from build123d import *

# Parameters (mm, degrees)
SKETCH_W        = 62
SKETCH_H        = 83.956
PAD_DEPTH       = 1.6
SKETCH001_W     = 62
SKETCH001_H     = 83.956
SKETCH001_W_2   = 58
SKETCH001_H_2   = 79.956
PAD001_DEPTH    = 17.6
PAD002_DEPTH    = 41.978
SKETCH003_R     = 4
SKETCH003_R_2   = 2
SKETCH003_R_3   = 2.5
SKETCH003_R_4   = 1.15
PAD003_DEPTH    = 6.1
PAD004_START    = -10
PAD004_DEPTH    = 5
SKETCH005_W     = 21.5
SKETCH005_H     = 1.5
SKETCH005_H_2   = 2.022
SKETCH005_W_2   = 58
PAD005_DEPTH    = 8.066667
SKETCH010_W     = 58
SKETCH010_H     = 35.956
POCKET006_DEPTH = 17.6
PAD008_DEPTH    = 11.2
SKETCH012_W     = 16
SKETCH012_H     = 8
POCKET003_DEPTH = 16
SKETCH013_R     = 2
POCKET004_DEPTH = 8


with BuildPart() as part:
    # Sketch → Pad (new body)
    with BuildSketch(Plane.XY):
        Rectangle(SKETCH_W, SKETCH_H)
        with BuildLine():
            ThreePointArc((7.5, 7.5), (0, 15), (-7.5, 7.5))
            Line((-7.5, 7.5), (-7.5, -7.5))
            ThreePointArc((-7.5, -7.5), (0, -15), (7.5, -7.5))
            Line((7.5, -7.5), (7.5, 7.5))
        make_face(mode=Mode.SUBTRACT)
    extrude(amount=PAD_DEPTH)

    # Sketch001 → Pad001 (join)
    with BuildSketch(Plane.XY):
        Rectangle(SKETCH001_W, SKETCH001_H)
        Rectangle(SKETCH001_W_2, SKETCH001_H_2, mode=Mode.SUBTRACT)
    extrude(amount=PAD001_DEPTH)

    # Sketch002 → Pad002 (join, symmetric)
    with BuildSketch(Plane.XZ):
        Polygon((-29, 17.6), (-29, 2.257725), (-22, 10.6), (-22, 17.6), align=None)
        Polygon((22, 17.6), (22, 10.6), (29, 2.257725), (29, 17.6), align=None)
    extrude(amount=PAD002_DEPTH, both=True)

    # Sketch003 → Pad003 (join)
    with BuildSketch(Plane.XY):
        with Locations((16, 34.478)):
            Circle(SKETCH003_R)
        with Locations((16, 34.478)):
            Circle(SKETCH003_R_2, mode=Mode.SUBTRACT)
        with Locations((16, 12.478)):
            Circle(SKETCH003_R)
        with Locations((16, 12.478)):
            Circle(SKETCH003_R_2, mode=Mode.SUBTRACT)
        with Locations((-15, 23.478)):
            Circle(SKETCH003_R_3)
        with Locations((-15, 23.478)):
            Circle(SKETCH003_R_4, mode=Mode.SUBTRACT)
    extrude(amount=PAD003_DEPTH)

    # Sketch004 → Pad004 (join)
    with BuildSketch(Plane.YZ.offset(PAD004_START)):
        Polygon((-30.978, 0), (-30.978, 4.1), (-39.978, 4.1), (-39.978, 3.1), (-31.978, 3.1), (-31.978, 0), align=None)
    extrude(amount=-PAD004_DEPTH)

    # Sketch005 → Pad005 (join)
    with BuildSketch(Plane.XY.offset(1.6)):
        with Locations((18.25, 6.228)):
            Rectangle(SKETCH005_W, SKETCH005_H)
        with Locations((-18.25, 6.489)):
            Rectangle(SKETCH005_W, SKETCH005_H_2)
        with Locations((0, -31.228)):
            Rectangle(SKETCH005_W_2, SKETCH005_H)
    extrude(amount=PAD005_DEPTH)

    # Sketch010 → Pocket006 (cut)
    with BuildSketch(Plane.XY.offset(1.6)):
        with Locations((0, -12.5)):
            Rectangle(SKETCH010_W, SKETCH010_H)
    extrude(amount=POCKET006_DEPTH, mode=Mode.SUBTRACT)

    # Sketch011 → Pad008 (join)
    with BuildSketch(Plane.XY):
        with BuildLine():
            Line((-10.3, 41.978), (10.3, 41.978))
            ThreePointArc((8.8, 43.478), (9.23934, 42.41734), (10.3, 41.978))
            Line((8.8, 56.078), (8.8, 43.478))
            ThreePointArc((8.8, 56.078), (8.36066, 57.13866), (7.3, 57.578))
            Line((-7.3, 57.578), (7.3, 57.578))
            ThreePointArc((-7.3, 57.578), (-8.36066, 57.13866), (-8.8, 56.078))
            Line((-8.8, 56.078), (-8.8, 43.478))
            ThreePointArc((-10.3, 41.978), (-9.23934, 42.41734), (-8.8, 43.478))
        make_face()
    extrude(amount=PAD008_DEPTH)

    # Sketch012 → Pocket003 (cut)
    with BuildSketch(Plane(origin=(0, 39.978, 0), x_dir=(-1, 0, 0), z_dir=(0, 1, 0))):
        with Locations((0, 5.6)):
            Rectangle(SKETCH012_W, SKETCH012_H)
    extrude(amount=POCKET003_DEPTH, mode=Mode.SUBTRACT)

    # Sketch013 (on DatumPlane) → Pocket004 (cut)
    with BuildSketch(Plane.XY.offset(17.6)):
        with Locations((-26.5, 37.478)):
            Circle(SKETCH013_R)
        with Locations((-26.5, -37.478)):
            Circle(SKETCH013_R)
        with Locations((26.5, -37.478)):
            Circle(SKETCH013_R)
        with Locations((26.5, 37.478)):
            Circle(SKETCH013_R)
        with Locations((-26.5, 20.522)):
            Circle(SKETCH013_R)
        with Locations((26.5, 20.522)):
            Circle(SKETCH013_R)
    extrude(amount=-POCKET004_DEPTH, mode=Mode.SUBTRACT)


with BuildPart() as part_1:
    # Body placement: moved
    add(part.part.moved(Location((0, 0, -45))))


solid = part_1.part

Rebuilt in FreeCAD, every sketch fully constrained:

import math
import FreeCAD as App
import Part
import Sketcher
Q = App.Units.Quantity

doc = App.newDocument("Part")
body = doc.addObject("PartDesign::Body", "Body")

# Sketch on XY plane
sketch1 = doc.addObject("Sketcher::SketchObject", "Sketch")
body.addObject(sketch1)
sketch1.AttachmentSupport = (doc.XY_Plane, [""])
sketch1.MapMode = "FlatFace"
sketch1.addGeometry(Part.LineSegment(App.Vector(-31, 42, 0), App.Vector(-31, -42, 0)), False)
sketch1.addGeometry(Part.LineSegment(App.Vector(-31, -42, 0), App.Vector(31, -42, 0)), False)
sketch1.addGeometry(Part.LineSegment(App.Vector(31, -42, 0), App.Vector(31, 42, 0)), False)
sketch1.addGeometry(Part.LineSegment(App.Vector(31, 42, 0), App.Vector(-31, 42, 0)), False)
sketch1.addGeometry(Part.ArcOfCircle(Part.Circle(App.Vector(0, 8, 0), App.Vector(0, 0, 1), 8), math.radians(0), math.radians(180)), False)
sketch1.addGeometry(Part.LineSegment(App.Vector(8, 8, 0), App.Vector(8, -8, 0)), False)
sketch1.addGeometry(Part.ArcOfCircle(Part.Circle(App.Vector(0, -8, 0), App.Vector(0, 0, 1), 8), math.radians(180), math.radians(360)), False)
sketch1.addGeometry(Part.LineSegment(App.Vector(-8, -8, 0), App.Vector(-8, 8, 0)), False)
sketch1.addConstraint(Sketcher.Constraint("Coincident", 0, 2, 1, 1))
sketch1.addConstraint(Sketcher.Constraint("Coincident", 1, 2, 2, 1))
sketch1.addConstraint(Sketcher.Constraint("Coincident", 2, 2, 3, 1))
sketch1.addConstraint(Sketcher.Constraint("Coincident", 3, 2, 0, 1))
sketch1.addConstraint(Sketcher.Constraint("Tangent", 4, 1, 5, 1))
sketch1.addConstraint(Sketcher.Constraint("Tangent", 5, 2, 6, 2))
sketch1.addConstraint(Sketcher.Constraint("Tangent", 6, 1, 7, 1))
sketch1.addConstraint(Sketcher.Constraint("Tangent", 7, 2, 4, 2))
sketch1.addConstraint(Sketcher.Constraint("Vertical", 0))
sketch1.addConstraint(Sketcher.Constraint("Horizontal", 1))
sketch1.addConstraint(Sketcher.Constraint("Vertical", 2))
sketch1.addConstraint(Sketcher.Constraint("Horizontal", 3))
sketch1.addConstraint(Sketcher.Constraint("Vertical", 5))
sketch1.addConstraint(Sketcher.Constraint("Vertical", 7))
sketch1.addConstraint(Sketcher.Constraint("Symmetric", 4, 3, 6, 3, -1, 1))
sketch1.addConstraint(Sketcher.Constraint("Symmetric", 0, 2, 2, 2, -1, 1))
sketch1.addConstraint(Sketcher.Constraint("Radius", 4, 7.5))
sketch1.addConstraint(Sketcher.Constraint("DistanceX", 1, 1, 1, 2, 62.0))
sketch1.addConstraint(Sketcher.Constraint("DistanceY", 5, 2, 5, 1, 15.0))
sketch1.addConstraint(Sketcher.Constraint("DistanceY", 0, 2, 0, 1, 83.956))
pad1 = doc.addObject("PartDesign::Pad", "Pad")
body.addObject(pad1)
pad1.Profile = sketch1
pad1.Length = 1.6

# Sketch on XY plane
sketch2 = doc.addObject("Sketcher::SketchObject", "Sketch001")
body.addObject(sketch2)
sketch2.AttachmentSupport = (doc.XY_Plane, [""])
sketch2.MapMode = "FlatFace"
sketch2.addGeometry(Part.LineSegment(App.Vector(-31, 42, 0), App.Vector(-31, -42, 0)), False)
sketch2.addGeometry(Part.LineSegment(App.Vector(-31, -42, 0), App.Vector(31, -42, 0)), False)
sketch2.addGeometry(Part.LineSegment(App.Vector(31, -42, 0), App.Vector(31, 42, 0)), False)
sketch2.addGeometry(Part.LineSegment(App.Vector(31, 42, 0), App.Vector(-31, 42, 0)), False)
sketch2.addGeometry(Part.LineSegment(App.Vector(29, -40, 0), App.Vector(-29, -40, 0)), False)
sketch2.addGeometry(Part.LineSegment(App.Vector(-29, -40, 0), App.Vector(-29, 40, 0)), False)
sketch2.addGeometry(Part.LineSegment(App.Vector(-29, 40, 0), App.Vector(29, 40, 0)), False)
sketch2.addGeometry(Part.LineSegment(App.Vector(29, 40, 0), App.Vector(29, -40, 0)), False)
sketch2.addConstraint(Sketcher.Constraint("Coincident", 0, 2, 1, 1))
sketch2.addConstraint(Sketcher.Constraint("Coincident", 1, 2, 2, 1))
sketch2.addConstraint(Sketcher.Constraint("Coincident", 2, 2, 3, 1))
sketch2.addConstraint(Sketcher.Constraint("Coincident", 3, 2, 0, 1))
sketch2.addConstraint(Sketcher.Constraint("Coincident", 4, 2, 5, 1))
sketch2.addConstraint(Sketcher.Constraint("Coincident", 5, 2, 6, 1))
sketch2.addConstraint(Sketcher.Constraint("Coincident", 6, 2, 7, 1))
sketch2.addConstraint(Sketcher.Constraint("Coincident", 7, 2, 4, 1))
sketch2.addConstraint(Sketcher.Constraint("Vertical", 0))
sketch2.addConstraint(Sketcher.Constraint("Horizontal", 1))
sketch2.addConstraint(Sketcher.Constraint("Vertical", 2))
sketch2.addConstraint(Sketcher.Constraint("Horizontal", 3))
sketch2.addConstraint(Sketcher.Constraint("Horizontal", 4))
sketch2.addConstraint(Sketcher.Constraint("Vertical", 5))
sketch2.addConstraint(Sketcher.Constraint("Horizontal", 6))
sketch2.addConstraint(Sketcher.Constraint("Vertical", 7))
sketch2.addConstraint(Sketcher.Constraint("Symmetric", 0, 2, 2, 2, -1, 1))
sketch2.addConstraint(Sketcher.Constraint("Symmetric", 4, 2, 6, 2, -1, 1))
sketch2.addConstraint(Sketcher.Constraint("DistanceX", 1, 1, 1, 2, 62.0))
sketch2.addConstraint(Sketcher.Constraint("DistanceX", 4, 2, 4, 1, 58.0))
sketch2.addConstraint(Sketcher.Constraint("DistanceY", 0, 2, 4, 2, 2.0))
sketch2.addConstraint(Sketcher.Constraint("DistanceY", 0, 2, 0, 1, 83.956))
pad2 = doc.addObject("PartDesign::Pad", "Pad001")
body.addObject(pad2)
pad2.Profile = sketch2
pad2.Length = 17.6

# Sketch on XZ plane
sketch3 = doc.addObject("Sketcher::SketchObject", "Sketch002")
body.addObject(sketch3)
sketch3.AttachmentSupport = (doc.XZ_Plane, [""])
sketch3.MapMode = "FlatFace"
sketch3.addGeometry(Part.LineSegment(App.Vector(-29, 18, 0), App.Vector(-29, 2, 0)), False)
sketch3.addGeometry(Part.LineSegment(App.Vector(-29, 2, 0), App.Vector(-22, 11, 0)), False)
sketch3.addGeometry(Part.LineSegment(App.Vector(-22, 11, 0), App.Vector(-22, 18, 0)), False)
sketch3.addGeometry(Part.LineSegment(App.Vector(-22, 18, 0), App.Vector(-29, 18, 0)), False)
sketch3.addGeometry(Part.LineSegment(App.Vector(22, 18, 0), App.Vector(22, 11, 0)), False)
sketch3.addGeometry(Part.LineSegment(App.Vector(22, 11, 0), App.Vector(29, 2, 0)), False)
sketch3.addGeometry(Part.LineSegment(App.Vector(29, 2, 0), App.Vector(29, 18, 0)), False)
sketch3.addGeometry(Part.LineSegment(App.Vector(29, 18, 0), App.Vector(22, 18, 0)), False)
sketch3.addConstraint(Sketcher.Constraint("Coincident", 0, 2, 1, 1))
sketch3.addConstraint(Sketcher.Constraint("Coincident", 1, 2, 2, 1))
sketch3.addConstraint(Sketcher.Constraint("Coincident", 2, 2, 3, 1))
sketch3.addConstraint(Sketcher.Constraint("Coincident", 3, 2, 0, 1))
sketch3.addConstraint(Sketcher.Constraint("Coincident", 4, 2, 5, 1))
sketch3.addConstraint(Sketcher.Constraint("Coincident", 5, 2, 6, 1))
sketch3.addConstraint(Sketcher.Constraint("Coincident", 6, 2, 7, 1))
sketch3.addConstraint(Sketcher.Constraint("Coincident", 7, 2, 4, 1))
sketch3.addConstraint(Sketcher.Constraint("Vertical", 0))
sketch3.addConstraint(Sketcher.Constraint("Vertical", 2))
sketch3.addConstraint(Sketcher.Constraint("Horizontal", 3))
sketch3.addConstraint(Sketcher.Constraint("Vertical", 4))
sketch3.addConstraint(Sketcher.Constraint("Vertical", 6))
sketch3.addConstraint(Sketcher.Constraint("Horizontal", 7))
sketch3.addConstraint(Sketcher.Constraint("Symmetric", 1, 2, 4, 2, -2))
sketch3.addConstraint(Sketcher.Constraint("Symmetric", 0, 2, 5, 2, -2))
sketch3.addConstraint(Sketcher.Constraint("Horizontal", 3, 2, 6, 2))
sketch3.addConstraint(Sketcher.Constraint("Equal", 7, 2))
sketch3.addConstraint(Sketcher.Constraint("DistanceX", 3, 2, 3, 1, 7.0))
sketch3.addConstraint(Sketcher.Constraint("Angle", 1, Q("49.999999 deg")))
sketch3.addConstraint(Sketcher.Constraint("DistanceX", 0, 2, -1, 1, 29.0))
sketch3.addConstraint(Sketcher.Constraint("DistanceY", -1, 1, 1, 2, 10.6))
pad3 = doc.addObject("PartDesign::Pad", "Pad002")
body.addObject(pad3)
pad3.Profile = sketch3
pad3.Length = 83.956
pad3.Midplane = True

# Sketch on XY plane
sketch4 = doc.addObject("Sketcher::SketchObject", "Sketch003")
body.addObject(sketch4)
sketch4.AttachmentSupport = (doc.XY_Plane, [""])
sketch4.MapMode = "FlatFace"
sketch4.addGeometry(Part.Circle(App.Vector(16, 34.5, 0), App.Vector(0, 0, 1), 4), False)
sketch4.addGeometry(Part.Circle(App.Vector(16, 34.5, 0), App.Vector(0, 0, 1), 2), False)
sketch4.addGeometry(Part.Circle(App.Vector(16, 12.5, 0), App.Vector(0, 0, 1), 4), False)
sketch4.addGeometry(Part.Circle(App.Vector(16, 12.5, 0), App.Vector(0, 0, 1), 2), False)
sketch4.addGeometry(Part.Circle(App.Vector(-15, 23.5, 0), App.Vector(0, 0, 1), 2.5), False)
sketch4.addGeometry(Part.Circle(App.Vector(-15, 23.5, 0), App.Vector(0, 0, 1), 1.1), False)
sketch4.addConstraint(Sketcher.Constraint("Coincident", 1, 3, 0, 3))
sketch4.addConstraint(Sketcher.Constraint("Coincident", 3, 3, 2, 3))
sketch4.addConstraint(Sketcher.Constraint("Coincident", 5, 3, 4, 3))
sketch4.addConstraint(Sketcher.Constraint("Equal", 0, 2))
sketch4.addConstraint(Sketcher.Constraint("Equal", 1, 3))
sketch4.addConstraint(Sketcher.Constraint("Vertical", 1, 3, 2, 3))
sketch4.addConstraint(Sketcher.Constraint("Diameter", 0, 8.0))
sketch4.addConstraint(Sketcher.Constraint("Diameter", 1, 4.0))
sketch4.addConstraint(Sketcher.Constraint("Diameter", 4, 5.0))
sketch4.addConstraint(Sketcher.Constraint("Diameter", 5, 2.3))
sketch4.addConstraint(Sketcher.Constraint("DistanceX", -1, 1, 0, 3, 16.0))
sketch4.addConstraint(Sketcher.Constraint("DistanceX", 4, 3, -1, 1, 15.0))
sketch4.addConstraint(Sketcher.Constraint("DistanceY", 2, 3, 0, 3, 22.0))
sketch4.addConstraint(Sketcher.Constraint("DistanceY", 4, 3, 0, 3, 11.0))
sketch4.addConstraint(Sketcher.Constraint("DistanceY", -1, 1, 0, 3, 34.478))
pad4 = doc.addObject("PartDesign::Pad", "Pad003")
body.addObject(pad4)
pad4.Profile = sketch4
pad4.Length = 6.1

# Sketch on YZ plane
sketch5 = doc.addObject("Sketcher::SketchObject", "Sketch004")
body.addObject(sketch5)
sketch5.AttachmentSupport = (doc.YZ_Plane, [""])
sketch5.MapMode = "FlatFace"
sketch5.AttachmentOffset = App.Placement(App.Vector(0, 0, -10), App.Rotation())
sketch5.addGeometry(Part.LineSegment(App.Vector(-31, 0, 0), App.Vector(-31, 4.1, 0)), False)
sketch5.addGeometry(Part.LineSegment(App.Vector(-31, 4.1, 0), App.Vector(-40, 4.1, 0)), False)
sketch5.addGeometry(Part.LineSegment(App.Vector(-40, 4.1, 0), App.Vector(-40, 3.1, 0)), False)
sketch5.addGeometry(Part.LineSegment(App.Vector(-40, 3.1, 0), App.Vector(-32, 3.1, 0)), False)
sketch5.addGeometry(Part.LineSegment(App.Vector(-32, 3.1, 0), App.Vector(-32, 0, 0)), False)
sketch5.addGeometry(Part.LineSegment(App.Vector(-32, 0, 0), App.Vector(-31, 0, 0)), False)
sketch5.addConstraint(Sketcher.Constraint("Coincident", 0, 2, 1, 1))
sketch5.addConstraint(Sketcher.Constraint("Coincident", 1, 2, 2, 1))
sketch5.addConstraint(Sketcher.Constraint("Coincident", 2, 2, 3, 1))
sketch5.addConstraint(Sketcher.Constraint("Coincident", 3, 2, 4, 1))
sketch5.addConstraint(Sketcher.Constraint("Coincident", 4, 2, 5, 1))
sketch5.addConstraint(Sketcher.Constraint("Coincident", 5, 2, 0, 1))
sketch5.addConstraint(Sketcher.Constraint("Vertical", 0))
sketch5.addConstraint(Sketcher.Constraint("Horizontal", 1))
sketch5.addConstraint(Sketcher.Constraint("Vertical", 2))
sketch5.addConstraint(Sketcher.Constraint("Horizontal", 3))
sketch5.addConstraint(Sketcher.Constraint("Vertical", 4))
sketch5.addConstraint(Sketcher.Constraint("Horizontal", 5))
sketch5.addConstraint(Sketcher.Constraint("PointOnObject", 4, 2, -1))
sketch5.addConstraint(Sketcher.Constraint("Equal", 5, 2))
sketch5.addConstraint(Sketcher.Constraint("DistanceX", 1, 2, 1, 1, 9.0))
sketch5.addConstraint(Sketcher.Constraint("DistanceX", 3, 1, 3, 2, 8.0))
sketch5.addConstraint(Sketcher.Constraint("DistanceY", 0, 1, 0, 2, 4.1))
sketch5.addConstraint(Sketcher.Constraint("DistanceX", 0, 2, -1, 1, 30.978))
pad5 = doc.addObject("PartDesign::Pad", "Pad004")
body.addObject(pad5)
pad5.Profile = sketch5
pad5.Length = 5
pad5.Reversed = True

# Sketch on XY plane
sketch6 = doc.addObject("Sketcher::SketchObject", "Sketch005")
body.addObject(sketch6)
sketch6.AttachmentSupport = (doc.XY_Plane, [""])
sketch6.MapMode = "FlatFace"
sketch6.AttachmentOffset = App.Placement(App.Vector(0, 0, 1.6), App.Rotation())
sketch6.addGeometry(Part.LineSegment(App.Vector(7.5, 7, 0), App.Vector(7.5, 5.5, 0)), False)
sketch6.addGeometry(Part.LineSegment(App.Vector(7.5, 5.5, 0), App.Vector(29, 5.5, 0)), False)
sketch6.addGeometry(Part.LineSegment(App.Vector(29, 5.5, 0), App.Vector(29, 7, 0)), False)
sketch6.addGeometry(Part.LineSegment(App.Vector(29, 7, 0), App.Vector(7.5, 7, 0)), False)
sketch6.addGeometry(Part.LineSegment(App.Vector(-29, 7.5, 0), App.Vector(-29, 5.5, 0)), False)
sketch6.addGeometry(Part.LineSegment(App.Vector(-29, 5.5, 0), App.Vector(-7.5, 5.5, 0)), False)
sketch6.addGeometry(Part.LineSegment(App.Vector(-7.5, 5.5, 0), App.Vector(-7.5, 7.5, 0)), False)
sketch6.addGeometry(Part.LineSegment(App.Vector(-7.5, 7.5, 0), App.Vector(-29, 7.5, 0)), False)
sketch6.addGeometry(Part.LineSegment(App.Vector(-29, -30.5, 0), App.Vector(-29, -32, 0)), False)
sketch6.addGeometry(Part.LineSegment(App.Vector(-29, -32, 0), App.Vector(29, -32, 0)), False)
sketch6.addGeometry(Part.LineSegment(App.Vector(29, -32, 0), App.Vector(29, -30.5, 0)), False)
sketch6.addGeometry(Part.LineSegment(App.Vector(29, -30.5, 0), App.Vector(-29, -30.5, 0)), False)
sketch6.addConstraint(Sketcher.Constraint("Coincident", 0, 2, 1, 1))
sketch6.addConstraint(Sketcher.Constraint("Coincident", 1, 2, 2, 1))
sketch6.addConstraint(Sketcher.Constraint("Coincident", 2, 2, 3, 1))
sketch6.addConstraint(Sketcher.Constraint("Coincident", 3, 2, 0, 1))
sketch6.addConstraint(Sketcher.Constraint("Coincident", 4, 2, 5, 1))
sketch6.addConstraint(Sketcher.Constraint("Coincident", 5, 2, 6, 1))
sketch6.addConstraint(Sketcher.Constraint("Coincident", 6, 2, 7, 1))
sketch6.addConstraint(Sketcher.Constraint("Coincident", 7, 2, 4, 1))
sketch6.addConstraint(Sketcher.Constraint("Coincident", 8, 2, 9, 1))
sketch6.addConstraint(Sketcher.Constraint("Coincident", 9, 2, 10, 1))
sketch6.addConstraint(Sketcher.Constraint("Coincident", 10, 2, 11, 1))
sketch6.addConstraint(Sketcher.Constraint("Coincident", 11, 2, 8, 1))
sketch6.addConstraint(Sketcher.Constraint("Vertical", 0))
sketch6.addConstraint(Sketcher.Constraint("Horizontal", 1))
sketch6.addConstraint(Sketcher.Constraint("Vertical", 2))
sketch6.addConstraint(Sketcher.Constraint("Horizontal", 3))
sketch6.addConstraint(Sketcher.Constraint("Vertical", 4))
sketch6.addConstraint(Sketcher.Constraint("Horizontal", 5))
sketch6.addConstraint(Sketcher.Constraint("Vertical", 6))
sketch6.addConstraint(Sketcher.Constraint("Horizontal", 7))
sketch6.addConstraint(Sketcher.Constraint("Vertical", 8))
sketch6.addConstraint(Sketcher.Constraint("Horizontal", 9))
sketch6.addConstraint(Sketcher.Constraint("Vertical", 10))
sketch6.addConstraint(Sketcher.Constraint("Horizontal", 11))
sketch6.addConstraint(Sketcher.Constraint("Symmetric", 1, 2, 4, 2, -2))
sketch6.addConstraint(Sketcher.Constraint("Vertical", 7, 2, 8, 2))
sketch6.addConstraint(Sketcher.Constraint("Vertical", 2, 2, 9, 2))
sketch6.addConstraint(Sketcher.Constraint("Equal", 3, 5))
sketch6.addConstraint(Sketcher.Constraint("Equal", 2, 8))
sketch6.addConstraint(Sketcher.Constraint("DistanceX", 9, 1, 9, 2, 58.0))
sketch6.addConstraint(Sketcher.Constraint("DistanceX", 1, 1, 1, 2, 21.5))
sketch6.addConstraint(Sketcher.Constraint("DistanceY", 0, 2, 0, 1, 1.5))
sketch6.addConstraint(Sketcher.Constraint("DistanceY", -1, 1, 6, 2, 7.5))
sketch6.addConstraint(Sketcher.Constraint("DistanceY", 4, 2, 4, 1, 2.022))
sketch6.addConstraint(Sketcher.Constraint("DistanceY", 8, 2, -1, 1, 31.978))
pad6 = doc.addObject("PartDesign::Pad", "Pad005")
body.addObject(pad6)
pad6.Profile = sketch6
pad6.Length = 8.066667

# Sketch on XY plane
sketch7 = doc.addObject("Sketcher::SketchObject", "Sketch006")
body.addObject(sketch7)
sketch7.AttachmentSupport = (doc.XY_Plane, [""])
sketch7.MapMode = "FlatFace"
sketch7.AttachmentOffset = App.Placement(App.Vector(0, 0, 1.6), App.Rotation())
sketch7.addGeometry(Part.LineSegment(App.Vector(-29, 5, 0), App.Vector(-29, -30, 0)), False)
sketch7.addGeometry(Part.LineSegment(App.Vector(-29, -30, 0), App.Vector(29, -30, 0)), False)
sketch7.addGeometry(Part.LineSegment(App.Vector(29, -30, 0), App.Vector(29, 5, 0)), False)
sketch7.addGeometry(Part.LineSegment(App.Vector(29, 5, 0), App.Vector(-29, 5, 0)), False)
sketch7.addConstraint(Sketcher.Constraint("Coincident", 0, 2, 1, 1))
sketch7.addConstraint(Sketcher.Constraint("Coincident", 1, 2, 2, 1))
sketch7.addConstraint(Sketcher.Constraint("Coincident", 2, 2, 3, 1))
sketch7.addConstraint(Sketcher.Constraint("Coincident", 3, 2, 0, 1))
sketch7.addConstraint(Sketcher.Constraint("Vertical", 0))
sketch7.addConstraint(Sketcher.Constraint("Horizontal", 1))
sketch7.addConstraint(Sketcher.Constraint("Vertical", 2))
sketch7.addConstraint(Sketcher.Constraint("Horizontal", 3))
sketch7.addConstraint(Sketcher.Constraint("DistanceX", 1, 1, 1, 2, 58.0))
sketch7.addConstraint(Sketcher.Constraint("DistanceX", 0, 2, -1, 1, 29.0))
sketch7.addConstraint(Sketcher.Constraint("DistanceY", 0, 2, 0, 1, 35.956))
sketch7.addConstraint(Sketcher.Constraint("DistanceY", 0, 2, -1, 1, 30.478))
pocket1 = doc.addObject("PartDesign::Pocket", "Pocket")
body.addObject(pocket1)
pocket1.Profile = sketch7
pocket1.Length = 17.6
pocket1.Reversed = True

# Sketch on XY plane
sketch8 = doc.addObject("Sketcher::SketchObject", "Sketch007")
body.addObject(sketch8)
sketch8.AttachmentSupport = (doc.XY_Plane, [""])
sketch8.MapMode = "FlatFace"
sketch8.addGeometry(Part.LineSegment(App.Vector(-10.3, 42, 0), App.Vector(10.3, 42, 0)), False)
sketch8.addGeometry(Part.ArcOfCircle(Part.Circle(App.Vector(10.3, 43.5, 0), App.Vector(0, 0, 1), 1.5), math.radians(-180), math.radians(-90)), False)
sketch8.addGeometry(Part.LineSegment(App.Vector(8.8, 43.5, 0), App.Vector(8.8, 56.1, 0)), False)
sketch8.addGeometry(Part.ArcOfCircle(Part.Circle(App.Vector(7.3, 56.1, 0), App.Vector(0, 0, 1), 1.5), math.radians(0), math.radians(90)), False)
sketch8.addGeometry(Part.LineSegment(App.Vector(7.3, 57.6, 0), App.Vector(-7.3, 57.6, 0)), False)
sketch8.addGeometry(Part.ArcOfCircle(Part.Circle(App.Vector(-7.3, 56.1, 0), App.Vector(0, 0, 1), 1.5), math.radians(90), math.radians(180)), False)
sketch8.addGeometry(Part.LineSegment(App.Vector(-8.8, 56.1, 0), App.Vector(-8.8, 43.5, 0)), False)
sketch8.addGeometry(Part.ArcOfCircle(Part.Circle(App.Vector(-10.3, 43.5, 0), App.Vector(0, 0, 1), 1.5), math.radians(-90), math.radians(0)), False)
sketch8.addConstraint(Sketcher.Constraint("Tangent", 0, 2, 1, 2))
sketch8.addConstraint(Sketcher.Constraint("Tangent", 1, 1, 2, 1))
sketch8.addConstraint(Sketcher.Constraint("Tangent", 2, 2, 3, 1))
sketch8.addConstraint(Sketcher.Constraint("Tangent", 3, 2, 4, 1))
sketch8.addConstraint(Sketcher.Constraint("Tangent", 4, 2, 5, 1))
sketch8.addConstraint(Sketcher.Constraint("Tangent", 5, 2, 6, 1))
sketch8.addConstraint(Sketcher.Constraint("Tangent", 6, 2, 7, 2))
sketch8.addConstraint(Sketcher.Constraint("Tangent", 7, 1, 0, 1))
sketch8.addConstraint(Sketcher.Constraint("Horizontal", 0))
sketch8.addConstraint(Sketcher.Constraint("Vertical", 2))
sketch8.addConstraint(Sketcher.Constraint("Horizontal", 4))
sketch8.addConstraint(Sketcher.Constraint("Vertical", 6))
sketch8.addConstraint(Sketcher.Constraint("Equal", 1, 3))
sketch8.addConstraint(Sketcher.Constraint("Equal", 3, 5))
sketch8.addConstraint(Sketcher.Constraint("Equal", 5, 7))
sketch8.addConstraint(Sketcher.Constraint("Radius", 1, 1.500001))
sketch8.addConstraint(Sketcher.Constraint("DistanceX", 0, 1, 0, 2, 20.6))
sketch8.addConstraint(Sketcher.Constraint("DistanceY", 2, 1, 2, 2, 12.6))
sketch8.addConstraint(Sketcher.Constraint("DistanceX", -1, 1, 1, 3, 10.300001))
sketch8.addConstraint(Sketcher.Constraint("DistanceY", -1, 1, 1, 3, 43.478001))
pad7 = doc.addObject("PartDesign::Pad", "Pad006")
body.addObject(pad7)
pad7.Profile = sketch8
pad7.Length = 11.2

# Sketch on XZ plane
sketch9 = doc.addObject("Sketcher::SketchObject", "Sketch008")
body.addObject(sketch9)
sketch9.AttachmentSupport = (doc.XZ_Plane, [""])
sketch9.MapMode = "FlatFace"
sketch9.AttachmentOffset = App.Placement(App.Vector(0, 0, -39.978), App.Rotation())
sketch9.addGeometry(Part.LineSegment(App.Vector(8, 10, 0), App.Vector(8, 2, 0)), False)
sketch9.addGeometry(Part.LineSegment(App.Vector(8, 2, 0), App.Vector(-8, 2, 0)), False)
sketch9.addGeometry(Part.LineSegment(App.Vector(-8, 2, 0), App.Vector(-8, 10, 0)), False)
sketch9.addGeometry(Part.LineSegment(App.Vector(-8, 10, 0), App.Vector(8, 10, 0)), False)
sketch9.addConstraint(Sketcher.Constraint("Coincident", 0, 2, 1, 1))
sketch9.addConstraint(Sketcher.Constraint("Coincident", 1, 2, 2, 1))
sketch9.addConstraint(Sketcher.Constraint("Coincident", 2, 2, 3, 1))
sketch9.addConstraint(Sketcher.Constraint("Coincident", 3, 2, 0, 1))
sketch9.addConstraint(Sketcher.Constraint("Vertical", 0))
sketch9.addConstraint(Sketcher.Constraint("Horizontal", 1))
sketch9.addConstraint(Sketcher.Constraint("Vertical", 2))
sketch9.addConstraint(Sketcher.Constraint("Horizontal", 3))
sketch9.addConstraint(Sketcher.Constraint("DistanceX", 1, 2, 1, 1, 16.0))
sketch9.addConstraint(Sketcher.Constraint("DistanceY", 0, 2, 0, 1, 8.0))
sketch9.addConstraint(Sketcher.Constraint("DistanceX", -1, 1, 0, 2, 8.0))
sketch9.addConstraint(Sketcher.Constraint("DistanceY", -1, 1, 0, 2, 1.6))
pocket2 = doc.addObject("PartDesign::Pocket", "Pocket001")
body.addObject(pocket2)
pocket2.Profile = sketch9
pocket2.Length = 16

# Sketch on XY plane
sketch10 = doc.addObject("Sketcher::SketchObject", "Sketch009")
body.addObject(sketch10)
sketch10.AttachmentSupport = (doc.XY_Plane, [""])
sketch10.MapMode = "FlatFace"
sketch10.AttachmentOffset = App.Placement(App.Vector(0, 0, 17.6), App.Rotation())
sketch10.addGeometry(Part.Circle(App.Vector(-26.5, 37.5, 0), App.Vector(0, 0, 1), 2), False)
sketch10.addGeometry(Part.Circle(App.Vector(-26.5, -37.5, 0), App.Vector(0, 0, 1), 2), False)
sketch10.addGeometry(Part.Circle(App.Vector(26.5, -37.5, 0), App.Vector(0, 0, 1), 2), False)
sketch10.addGeometry(Part.Circle(App.Vector(26.5, 37.5, 0), App.Vector(0, 0, 1), 2), False)
sketch10.addGeometry(Part.Circle(App.Vector(-26.5, 20.5, 0), App.Vector(0, 0, 1), 2), False)
sketch10.addGeometry(Part.Circle(App.Vector(26.5, 20.5, 0), App.Vector(0, 0, 1), 2), False)
sketch10.addConstraint(Sketcher.Constraint("Equal", 0, 1))
sketch10.addConstraint(Sketcher.Constraint("Equal", 1, 2))
sketch10.addConstraint(Sketcher.Constraint("Equal", 2, 3))
sketch10.addConstraint(Sketcher.Constraint("Equal", 3, 4))
sketch10.addConstraint(Sketcher.Constraint("Equal", 4, 5))
sketch10.addConstraint(Sketcher.Constraint("Symmetric", 0, 3, 2, 3, -1, 1))
sketch10.addConstraint(Sketcher.Constraint("Symmetric", 1, 3, 3, 3, -1, 1))
sketch10.addConstraint(Sketcher.Constraint("Symmetric", 1, 3, 2, 3, -2))
sketch10.addConstraint(Sketcher.Constraint("Symmetric", 4, 3, 5, 3, -2))
sketch10.addConstraint(Sketcher.Constraint("Vertical", 1, 3, 4, 3))
sketch10.addConstraint(Sketcher.Constraint("Diameter", 0, 4.0))
sketch10.addConstraint(Sketcher.Constraint("DistanceX", 1, 3, 2, 3, 53.0))
sketch10.addConstraint(Sketcher.Constraint("DistanceY", 1, 3, 4, 3, 58.0))
sketch10.addConstraint(Sketcher.Constraint("DistanceY", -1, 1, 0, 3, 37.478))
pocket3 = doc.addObject("PartDesign::Pocket", "Pocket002")
body.addObject(pocket3)
pocket3.Profile = sketch10
pocket3.Length = 8
body2 = doc.addObject("PartDesign::Body", "Body001")
doc.recompute()

body.Placement = App.Placement(App.Vector(0, 0, -45), App.Rotation(App.Vector(0, 0, 1), 0))
boolean = doc.addObject("PartDesign::Boolean", "Boolean")
body2.addObject(boolean)
boolean.Type = "Fuse"
boolean.addObjects([body])

doc.recompute()
